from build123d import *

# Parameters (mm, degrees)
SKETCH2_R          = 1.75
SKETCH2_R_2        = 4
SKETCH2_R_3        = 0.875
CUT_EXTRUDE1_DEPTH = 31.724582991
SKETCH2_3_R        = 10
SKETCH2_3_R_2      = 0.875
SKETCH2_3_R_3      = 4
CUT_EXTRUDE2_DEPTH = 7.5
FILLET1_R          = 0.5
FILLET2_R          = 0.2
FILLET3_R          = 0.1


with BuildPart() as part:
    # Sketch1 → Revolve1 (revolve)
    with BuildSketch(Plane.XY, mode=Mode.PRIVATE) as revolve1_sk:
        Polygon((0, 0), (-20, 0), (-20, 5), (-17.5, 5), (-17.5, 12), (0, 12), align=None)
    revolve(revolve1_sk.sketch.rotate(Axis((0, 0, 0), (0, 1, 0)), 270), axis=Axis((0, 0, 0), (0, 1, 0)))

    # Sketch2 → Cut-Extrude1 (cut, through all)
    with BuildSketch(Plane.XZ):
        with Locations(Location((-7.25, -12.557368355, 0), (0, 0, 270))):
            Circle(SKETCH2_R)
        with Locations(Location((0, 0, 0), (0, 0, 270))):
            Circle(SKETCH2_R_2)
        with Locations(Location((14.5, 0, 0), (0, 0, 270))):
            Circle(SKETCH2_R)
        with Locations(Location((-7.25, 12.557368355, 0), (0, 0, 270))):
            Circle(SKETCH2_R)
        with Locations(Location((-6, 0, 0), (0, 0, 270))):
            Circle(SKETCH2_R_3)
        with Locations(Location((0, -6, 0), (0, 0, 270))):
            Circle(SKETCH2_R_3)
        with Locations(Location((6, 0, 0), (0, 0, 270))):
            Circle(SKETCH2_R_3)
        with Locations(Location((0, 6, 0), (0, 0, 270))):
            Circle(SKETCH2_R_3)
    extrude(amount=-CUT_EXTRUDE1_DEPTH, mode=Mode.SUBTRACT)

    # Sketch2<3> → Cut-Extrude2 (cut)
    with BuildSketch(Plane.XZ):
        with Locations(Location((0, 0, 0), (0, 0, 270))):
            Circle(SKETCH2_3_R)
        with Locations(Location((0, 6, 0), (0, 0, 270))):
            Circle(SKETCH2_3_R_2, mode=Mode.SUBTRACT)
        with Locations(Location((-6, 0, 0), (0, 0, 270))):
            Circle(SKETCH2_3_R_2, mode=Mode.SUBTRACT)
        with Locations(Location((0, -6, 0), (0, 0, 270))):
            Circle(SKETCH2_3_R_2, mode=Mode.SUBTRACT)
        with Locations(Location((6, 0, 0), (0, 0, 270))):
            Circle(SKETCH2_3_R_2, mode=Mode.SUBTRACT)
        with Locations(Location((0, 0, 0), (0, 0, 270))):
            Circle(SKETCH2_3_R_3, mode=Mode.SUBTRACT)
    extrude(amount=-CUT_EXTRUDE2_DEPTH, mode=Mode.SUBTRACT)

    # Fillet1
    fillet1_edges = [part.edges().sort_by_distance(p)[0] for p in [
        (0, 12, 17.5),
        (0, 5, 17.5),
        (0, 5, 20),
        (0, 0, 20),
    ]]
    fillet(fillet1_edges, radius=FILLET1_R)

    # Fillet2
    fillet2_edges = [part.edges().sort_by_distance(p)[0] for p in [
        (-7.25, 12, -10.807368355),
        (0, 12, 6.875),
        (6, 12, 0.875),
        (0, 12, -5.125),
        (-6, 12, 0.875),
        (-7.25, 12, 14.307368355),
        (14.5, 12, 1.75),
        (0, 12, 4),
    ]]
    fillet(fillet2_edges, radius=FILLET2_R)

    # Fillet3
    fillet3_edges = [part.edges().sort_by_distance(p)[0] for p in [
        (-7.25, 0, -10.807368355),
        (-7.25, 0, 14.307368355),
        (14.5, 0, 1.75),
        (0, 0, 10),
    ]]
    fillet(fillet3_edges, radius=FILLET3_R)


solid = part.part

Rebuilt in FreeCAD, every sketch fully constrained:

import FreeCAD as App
import Part
import Sketcher
from FreeCAD import Vector


def edges_at(feature, points):
    """Names of the edges that pass closest to the given points."""
    edges = feature.Shape.Edges
    near = lambda p: min(range(len(edges)), key=lambda i: edges[i].distToShape(Part.Vertex(*p))[0])
    return sorted({f"Edge{near(p) + 1}" for p in points})

doc = App.newDocument("Part")
params = doc.addObject("Spreadsheet::Sheet", "Params")
for row, (alias, value) in enumerate([
    ("sketch1_width", "20 mm"),
    ("sketch1_height", "12 mm"),
    ("sketch1_height2", "7 mm"),
    ("sketch1_width2", "17.5 mm"),
    ("revolution_angle", "360 deg"),
    ("sketch2_diameter", "8 mm"),
    ("sketch2_diameter2", "3.5 mm"),
    ("sketch2_diameter3", "1.75 mm"),
    ("sketch3_diameter", "20 mm"),
    ("sketch3_diameter2", "8 mm"),
    ("sketch3_diameter3", "1.75 mm"),
    ("pocket2_length", "7.5 mm"),
    ("fillet_radius", "0.5 mm"),
    ("fillet2_radius", "0.2 mm"),
    ("fillet3_radius", "0.1 mm"),
], start=1):
    params.set(f"A{row}", alias)
    params.set(f"B{row}", "=" + value)
    params.setAlias(f"B{row}", alias)

body = doc.addObject("PartDesign::Body", "Body")

sketch1 = body.newObject("Sketcher::SketchObject", "Sketch")
sketch1.AttachmentSupport = (doc.getObject("XY_Plane"), [""])
sketch1.MapMode = "FlatFace"
sketch1.addGeometry([
    Part.LineSegment(Vector(-20, 0, 0), Vector(0, 0, 0)),
    Part.LineSegment(Vector(0, 0, 0), Vector(0, 12, 0)),
    Part.LineSegment(Vector(0, 12, 0), Vector(-17.5, 12, 0)),
    Part.LineSegment(Vector(-17.5, 12, 0), Vector(-17.5, 5, 0)),
    Part.LineSegment(Vector(-17.5, 5, 0), Vector(-20, 5, 0)),
    Part.LineSegment(Vector(-20, 5, 0), Vector(-20, 0, 0)),
], False)
sketch1.addConstraint([
    Sketcher.Constraint("Coincident", 0, 2, 1, 1),
    Sketcher.Constraint("Coincident", 1, 2, 2, 1),
    Sketcher.Constraint("Coincident", 2, 2, 3, 1),
    Sketcher.Constraint("Coincident", 3, 2, 4, 1),
    Sketcher.Constraint("Coincident", 4, 2, 5, 1),
    Sketcher.Constraint("Coincident", 5, 2, 0, 1),
    Sketcher.Constraint("Horizontal", 0),
    Sketcher.Constraint("Vertical", 1),
    Sketcher.Constraint("Horizontal", 2),
    Sketcher.Constraint("Vertical", 3),
    Sketcher.Constraint("Horizontal", 4),
    Sketcher.Constraint("Vertical", 5),
    Sketcher.Constraint("Coincident", 0, 2, -1, 1),
    Sketcher.Constraint("DistanceX", 0, 1, 0, 2, 20.0),
    Sketcher.Constraint("DistanceY", 1, 1, 1, 2, 12.0),
    Sketcher.Constraint("DistanceY", 3, 2, 3, 1, 7.0),
    Sketcher.Constraint("DistanceX", 2, 2, 2, 1, 17.5),
])
sketch1.setExpression("Constraints[13]", "Params.sketch1_width")
sketch1.setExpression("Constraints[14]", "Params.sketch1_height")
sketch1.setExpression("Constraints[15]", "Params.sketch1_height2")
sketch1.setExpression("Constraints[16]", "Params.sketch1_width2")
revolution = body.newObject("PartDesign::Revolution", "Revolution")
revolution.Profile = sketch1
revolution.ReferenceAxis = (sketch1, ["V_Axis"])
revolution.setExpression("Angle", "Params.revolution_angle")

sketch2 = body.newObject("Sketcher::SketchObject", "Sketch001")
sketch2.AttachmentSupport = (doc.getObject("XZ_Plane"), [""])
sketch2.MapMode = "FlatFace"
sketch2.addGeometry([
    Part.Circle(Vector(-7.2, -12.6, 0), Vector(0, 0, 1), 1.8),
    Part.Circle(Vector(0, 0, 0), Vector(0, 0, 1), 4),
    Part.Circle(Vector(14.5, 0, 0), Vector(0, 0, 1), 1.8),
    Part.Circle(Vector(-7.2, 12.6, 0), Vector(0, 0, 1), 1.8),
    Part.Circle(Vector(-6, 0, 0), Vector(0, 0, 1), 0.9),
    Part.Circle(Vector(0, -6, 0), Vector(0, 0, 1), 0.9),
    Part.Circle(Vector(6, 0, 0), Vector(0, 0, 1), 0.9),
    Part.Circle(Vector(0, 6, 0), Vector(0, 0, 1), 0.9),
], False)
sketch2.addConstraint([
    Sketcher.Constraint("Coincident", 1, 3, -1, 1),
    Sketcher.Constraint("Equal", 0, 2),
    Sketcher.Constraint("Equal", 2, 3),
    Sketcher.Constraint("Equal", 4, 5),
    Sketcher.Constraint("Equal", 5, 6),
    Sketcher.Constraint("Equal", 6, 7),
    Sketcher.Constraint("Symmetric", 4, 3, 6, 3, -1, 1),
    Sketcher.Constraint("Symmetric", 5, 3, 7, 3, -1, 1),
    Sketcher.Constraint("Symmetric", 0, 3, 3, 3, -1),
    Sketcher.Constraint("PointOnObject", 2, 3, -1),
    Sketcher.Constraint("PointOnObject", 4, 3, -1),
    Sketcher.Constraint("PointOnObject", 5, 3, -2),
    Sketcher.Constraint("Diameter", 1, 8.0),
    Sketcher.Constraint("Diameter", 0, 3.5),
    Sketcher.Constraint("Diameter", 4, 1.75),
    Sketcher.Constraint("DistanceX", 4, 3, -1, 1, 6.0),
    Sketcher.Constraint("DistanceY", 5, 3, -1, 1, 6.0),
    Sketcher.Constraint("DistanceX", -1, 1, 2, 3, 14.5),
    Sketcher.Constraint("DistanceX", 0, 3, -1, 1, 7.25),
    Sketcher.Constraint("DistanceY", 0, 3, -1, 1, 12.557368),
])
sketch2.setExpression("Constraints[12]", "Params.sketch2_diameter")
sketch2.setExpression("Constraints[13]", "Params.sketch2_diameter2")
sketch2.setExpression("Constraints[14]", "Params.sketch2_diameter3")
pocket1 = body.newObject("PartDesign::Pocket", "Pocket")
pocket1.Profile = sketch2
pocket1.Type = "ThroughAll"

sketch3 = body.newObject("Sketcher::SketchObject", "Sketch002")
sketch3.AttachmentSupport = (doc.getObject("XZ_Plane"), [""])
sketch3.MapMode = "FlatFace"
sketch3.addGeometry([
    Part.Circle(Vector(0, 0, 0), Vector(0, 0, 1), 10),
    Part.Circle(Vector(0, 6, 0), Vector(0, 0, 1), 0.9),
    Part.Circle(Vector(-6, 0, 0), Vector(0, 0, 1), 0.9),
    Part.Circle(Vector(6, 0, 0), Vector(0, 0, 1), 0.9),
    Part.Circle(Vector(0, 0, 0), Vector(0, 0, 1), 4),
    Part.Circle(Vector(0, -6, 0), Vector(0, 0, 1), 0.9),
], False)
sketch3.addConstraint([
    Sketcher.Constraint("Coincident", 0, 3, -1, 1),
    Sketcher.Constraint("Coincident", 4, 3, -1, 1),
    Sketcher.Constraint("Equal", 1, 2),
    Sketcher.Constraint("Equal", 2, 3),
    Sketcher.Constraint("Equal", 3, 5),
    Sketcher.Constraint("Symmetric", 2, 3, 3, 3, -1, 1),
    Sketcher.Constraint("Symmetric", 1, 3, 5, 3, -1, 1),
    Sketcher.Constraint("PointOnObject", 1, 3, -2),
    Sketcher.Constraint("PointOnObject", 2, 3, -1),
    Sketcher.Constraint("Diameter", 0, 20.0),
    Sketcher.Constraint("Diameter", 4, 8.0),
    Sketcher.Constraint("Diameter", 1, 1.75),
    Sketcher.Constraint("DistanceY", -1, 1, 1, 3, 6.0),
    Sketcher.Constraint("DistanceX", 2, 3, -1, 1, 6.0),
])
sketch3.setExpression("Constraints[9]", "Params.sketch3_diameter")
sketch3.setExpression("Constraints[10]", "Params.sketch3_diameter2")
sketch3.setExpression("Constraints[11]", "Params.sketch3_diameter3")
pocket2 = body.newObject("PartDesign::Pocket", "Pocket001")
pocket2.Profile = sketch3
pocket2.setExpression("Length", "Params.pocket2_length")
doc.recompute()

fillet = body.newObject("PartDesign::Fillet", "Fillet")
fillet.Base = (pocket2, edges_at(pocket2, [
    (0, 12, 17.5),
    (0, 5, 17.5),
    (0, 5, 20),
    (0, 0, 20),
]))
fillet.setExpression("Radius", "Params.fillet_radius")
doc.recompute()

fillet2 = body.newObject("PartDesign::Fillet", "Fillet001")
fillet2.Base = (fillet, edges_at(fillet, [
    (-7.25, 12, -10.807),
    (0, 12, 6.875),
    (6, 12, 0.875),
    (0, 12, -5.125),
    (-6, 12, 0.875),
    (-7.25, 12, 14.307),
    (14.5, 12, 1.75),
    (0, 12, 4),
]))
fillet2.setExpression("Radius", "Params.fillet2_radius")
doc.recompute()

fillet3 = body.newObject("PartDesign::Fillet", "Fillet002")
fillet3.Base = (fillet2, edges_at(fillet2, [
    (-7.25, 0, -10.807),
    (-7.25, 0, 14.307),
    (14.5, 0, 1.75),
    (0, 0, 10),
]))
fillet3.setExpression("Radius", "Params.fillet3_radius")

doc.recompute()
